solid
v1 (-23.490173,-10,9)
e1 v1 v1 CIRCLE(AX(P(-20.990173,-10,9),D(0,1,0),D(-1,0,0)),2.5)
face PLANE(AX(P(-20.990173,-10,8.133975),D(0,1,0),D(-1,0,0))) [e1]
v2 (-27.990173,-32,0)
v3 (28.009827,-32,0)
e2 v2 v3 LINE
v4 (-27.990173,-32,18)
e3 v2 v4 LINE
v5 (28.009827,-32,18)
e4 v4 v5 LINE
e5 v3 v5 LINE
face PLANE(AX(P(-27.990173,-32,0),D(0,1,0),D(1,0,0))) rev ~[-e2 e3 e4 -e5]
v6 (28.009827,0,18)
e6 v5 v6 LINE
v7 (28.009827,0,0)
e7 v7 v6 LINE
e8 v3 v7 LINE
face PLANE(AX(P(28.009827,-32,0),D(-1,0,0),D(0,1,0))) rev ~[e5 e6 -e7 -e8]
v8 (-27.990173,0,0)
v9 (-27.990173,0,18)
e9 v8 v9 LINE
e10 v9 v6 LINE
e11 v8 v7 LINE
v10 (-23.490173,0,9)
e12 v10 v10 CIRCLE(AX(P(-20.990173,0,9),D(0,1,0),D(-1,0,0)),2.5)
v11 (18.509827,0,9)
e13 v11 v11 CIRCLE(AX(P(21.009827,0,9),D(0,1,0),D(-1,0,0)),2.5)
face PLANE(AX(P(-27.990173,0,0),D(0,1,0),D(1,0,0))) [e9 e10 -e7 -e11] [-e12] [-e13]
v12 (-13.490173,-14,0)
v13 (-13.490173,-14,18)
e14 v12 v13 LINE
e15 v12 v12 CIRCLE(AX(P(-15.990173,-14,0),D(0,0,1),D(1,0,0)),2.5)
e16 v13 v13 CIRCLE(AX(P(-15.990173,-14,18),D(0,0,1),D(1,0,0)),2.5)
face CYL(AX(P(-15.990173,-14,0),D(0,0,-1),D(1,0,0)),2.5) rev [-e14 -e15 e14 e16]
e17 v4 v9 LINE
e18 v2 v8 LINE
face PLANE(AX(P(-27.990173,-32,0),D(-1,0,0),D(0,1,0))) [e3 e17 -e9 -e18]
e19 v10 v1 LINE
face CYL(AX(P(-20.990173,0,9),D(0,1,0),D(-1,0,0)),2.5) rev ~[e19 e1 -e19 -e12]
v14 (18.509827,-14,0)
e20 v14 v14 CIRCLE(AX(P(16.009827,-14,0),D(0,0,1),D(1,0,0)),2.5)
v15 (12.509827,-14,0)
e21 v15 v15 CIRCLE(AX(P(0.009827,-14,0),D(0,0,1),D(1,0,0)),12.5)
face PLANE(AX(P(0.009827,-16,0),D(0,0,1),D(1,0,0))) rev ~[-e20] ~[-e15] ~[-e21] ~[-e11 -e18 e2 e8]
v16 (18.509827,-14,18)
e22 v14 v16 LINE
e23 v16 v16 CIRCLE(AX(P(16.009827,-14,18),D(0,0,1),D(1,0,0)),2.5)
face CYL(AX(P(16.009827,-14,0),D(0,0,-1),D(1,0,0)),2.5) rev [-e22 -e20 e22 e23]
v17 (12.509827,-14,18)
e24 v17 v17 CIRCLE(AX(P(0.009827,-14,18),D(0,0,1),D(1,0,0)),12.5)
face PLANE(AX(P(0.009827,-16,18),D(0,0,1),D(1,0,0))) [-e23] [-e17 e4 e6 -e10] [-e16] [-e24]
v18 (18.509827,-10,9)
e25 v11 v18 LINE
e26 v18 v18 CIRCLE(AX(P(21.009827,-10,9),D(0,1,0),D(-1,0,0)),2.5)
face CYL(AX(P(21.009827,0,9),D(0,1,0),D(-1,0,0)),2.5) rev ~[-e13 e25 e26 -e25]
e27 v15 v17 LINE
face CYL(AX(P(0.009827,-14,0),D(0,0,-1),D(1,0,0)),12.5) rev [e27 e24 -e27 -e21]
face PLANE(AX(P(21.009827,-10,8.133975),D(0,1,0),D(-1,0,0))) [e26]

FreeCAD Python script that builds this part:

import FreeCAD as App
import Part
import Sketcher


def add_polygon(sketch, points):
    """Adds a closed chain of lines whose ends are joined by coincident constraints."""
    first, n = sketch.GeometryCount, len(points)
    for a, b in zip(points, points[1:] + points[:1]):
        sketch.addGeometry(Part.LineSegment(App.Vector(*a, 0), App.Vector(*b, 0)), False)
    for i in range(n):
        sketch.addConstraint(Sketcher.Constraint("Coincident", first + i, 2, first + (i + 1) % n, 1))

doc = App.newDocument("Part")
body = doc.addObject("PartDesign::Body", "Body")

sketch1 = body.newObject("Sketcher::SketchObject", "Sketch")
sketch1.AttachmentSupport = (doc.getObject("XY_Plane"), [""])
sketch1.MapMode = "FlatFace"
add_polygon(sketch1, [(-27.990173, 0), (-27.990173, -32), (28.009827, -32), (28.009827, 0)])
sketch1.addGeometry(Part.Circle(App.Vector(-15.990173, -14, 0), App.Vector(0, 0, 1), 2.5), False)
sketch1.addGeometry(Part.Circle(App.Vector(0.009827, -14, 0), App.Vector(0, 0, 1), 12.5), False)
sketch1.addGeometry(Part.Circle(App.Vector(16.009827, -14, 0), App.Vector(0, 0, 1), 2.5), False)
sketch1.addConstraint(Sketcher.Constraint("Vertical", 0))
sketch1.addConstraint(Sketcher.Constraint("Horizontal", 1))
sketch1.addConstraint(Sketcher.Constraint("Vertical", 2))
sketch1.addConstraint(Sketcher.Constraint("Horizontal", 3))
sketch1.addConstraint(Sketcher.Constraint("Equal", 4, 6))
sketch1.addConstraint(Sketcher.Constraint("PointOnObject", 2, 2, -1))
sketch1.addConstraint(Sketcher.Constraint("Horizontal", 4, 3, 5, 3))
sketch1.addConstraint(Sketcher.Constraint("Horizontal", 5, 3, 6, 3))
sketch1.addConstraint(Sketcher.Constraint("Diameter", 4, 5.0))
sketch1.addConstraint(Sketcher.Constraint("Diameter", 5, 25.0))
sketch1.addConstraint(Sketcher.Constraint("DistanceX", 1, 1, 1, 2, 56.0))
sketch1.addConstraint(Sketcher.Constraint("DistanceY", 0, 2, 0, 1, 32.0))
sketch1.addConstraint(Sketcher.Constraint("DistanceY", 4, 3, -1, 1, 14.0))
sketch1.addConstraint(Sketcher.Constraint("DistanceX", 4, 3, 5, 3, 16.0))
sketch1.addConstraint(Sketcher.Constraint("DistanceX", 5, 3, 6, 3, 16.0))
sketch1.addConstraint(Sketcher.Constraint("DistanceX", 0, 2, 4, 3, 12.0))
sketch1.addConstraint(Sketcher.Constraint("DistanceX", 4, 3, -1, 1, 15.990173))
pad1 = body.newObject("PartDesign::Pad", "Pad")
pad1.Profile = sketch1
pad1.Length = 18

sketch2 = body.newObject("Sketcher::SketchObject", "Sketch001")
sketch2.AttachmentSupport = (doc.getObject("XZ_Plane"), [""])
sketch2.MapMode = "FlatFace"
sketch2.addGeometry(Part.Circle(App.Vector(-20.990173, 9, 0), App.Vector(0, 0, 1), 2.5), False)
sketch2.addGeometry(Part.Circle(App.Vector(21.009827, 9, 0), App.Vector(0, 0, 1), 2.5), False)
sketch2.addConstraint(Sketcher.Constraint("Equal", 0, 1))
sketch2.addConstraint(Sketcher.Constraint("Horizontal", 0, 3, 1, 3))
sketch2.addConstraint(Sketcher.Constraint("Diameter", 0, 5.0))
sketch2.addConstraint(Sketcher.Constraint("DistanceY", -1, 1, 0, 3, 9.0))
sketch2.addConstraint(Sketcher.Constraint("DistanceX", 0, 3, 1, 3, 42.0))
sketch2.addConstraint(Sketcher.Constraint("DistanceX", 0, 3, -1, 1, 20.990173))
pocket1 = body.newObject("PartDesign::Pocket", "Pocket")
pocket1.Profile = sketch2
pocket1.Length = 10
pocket1.Reversed = True

doc.recompute()
